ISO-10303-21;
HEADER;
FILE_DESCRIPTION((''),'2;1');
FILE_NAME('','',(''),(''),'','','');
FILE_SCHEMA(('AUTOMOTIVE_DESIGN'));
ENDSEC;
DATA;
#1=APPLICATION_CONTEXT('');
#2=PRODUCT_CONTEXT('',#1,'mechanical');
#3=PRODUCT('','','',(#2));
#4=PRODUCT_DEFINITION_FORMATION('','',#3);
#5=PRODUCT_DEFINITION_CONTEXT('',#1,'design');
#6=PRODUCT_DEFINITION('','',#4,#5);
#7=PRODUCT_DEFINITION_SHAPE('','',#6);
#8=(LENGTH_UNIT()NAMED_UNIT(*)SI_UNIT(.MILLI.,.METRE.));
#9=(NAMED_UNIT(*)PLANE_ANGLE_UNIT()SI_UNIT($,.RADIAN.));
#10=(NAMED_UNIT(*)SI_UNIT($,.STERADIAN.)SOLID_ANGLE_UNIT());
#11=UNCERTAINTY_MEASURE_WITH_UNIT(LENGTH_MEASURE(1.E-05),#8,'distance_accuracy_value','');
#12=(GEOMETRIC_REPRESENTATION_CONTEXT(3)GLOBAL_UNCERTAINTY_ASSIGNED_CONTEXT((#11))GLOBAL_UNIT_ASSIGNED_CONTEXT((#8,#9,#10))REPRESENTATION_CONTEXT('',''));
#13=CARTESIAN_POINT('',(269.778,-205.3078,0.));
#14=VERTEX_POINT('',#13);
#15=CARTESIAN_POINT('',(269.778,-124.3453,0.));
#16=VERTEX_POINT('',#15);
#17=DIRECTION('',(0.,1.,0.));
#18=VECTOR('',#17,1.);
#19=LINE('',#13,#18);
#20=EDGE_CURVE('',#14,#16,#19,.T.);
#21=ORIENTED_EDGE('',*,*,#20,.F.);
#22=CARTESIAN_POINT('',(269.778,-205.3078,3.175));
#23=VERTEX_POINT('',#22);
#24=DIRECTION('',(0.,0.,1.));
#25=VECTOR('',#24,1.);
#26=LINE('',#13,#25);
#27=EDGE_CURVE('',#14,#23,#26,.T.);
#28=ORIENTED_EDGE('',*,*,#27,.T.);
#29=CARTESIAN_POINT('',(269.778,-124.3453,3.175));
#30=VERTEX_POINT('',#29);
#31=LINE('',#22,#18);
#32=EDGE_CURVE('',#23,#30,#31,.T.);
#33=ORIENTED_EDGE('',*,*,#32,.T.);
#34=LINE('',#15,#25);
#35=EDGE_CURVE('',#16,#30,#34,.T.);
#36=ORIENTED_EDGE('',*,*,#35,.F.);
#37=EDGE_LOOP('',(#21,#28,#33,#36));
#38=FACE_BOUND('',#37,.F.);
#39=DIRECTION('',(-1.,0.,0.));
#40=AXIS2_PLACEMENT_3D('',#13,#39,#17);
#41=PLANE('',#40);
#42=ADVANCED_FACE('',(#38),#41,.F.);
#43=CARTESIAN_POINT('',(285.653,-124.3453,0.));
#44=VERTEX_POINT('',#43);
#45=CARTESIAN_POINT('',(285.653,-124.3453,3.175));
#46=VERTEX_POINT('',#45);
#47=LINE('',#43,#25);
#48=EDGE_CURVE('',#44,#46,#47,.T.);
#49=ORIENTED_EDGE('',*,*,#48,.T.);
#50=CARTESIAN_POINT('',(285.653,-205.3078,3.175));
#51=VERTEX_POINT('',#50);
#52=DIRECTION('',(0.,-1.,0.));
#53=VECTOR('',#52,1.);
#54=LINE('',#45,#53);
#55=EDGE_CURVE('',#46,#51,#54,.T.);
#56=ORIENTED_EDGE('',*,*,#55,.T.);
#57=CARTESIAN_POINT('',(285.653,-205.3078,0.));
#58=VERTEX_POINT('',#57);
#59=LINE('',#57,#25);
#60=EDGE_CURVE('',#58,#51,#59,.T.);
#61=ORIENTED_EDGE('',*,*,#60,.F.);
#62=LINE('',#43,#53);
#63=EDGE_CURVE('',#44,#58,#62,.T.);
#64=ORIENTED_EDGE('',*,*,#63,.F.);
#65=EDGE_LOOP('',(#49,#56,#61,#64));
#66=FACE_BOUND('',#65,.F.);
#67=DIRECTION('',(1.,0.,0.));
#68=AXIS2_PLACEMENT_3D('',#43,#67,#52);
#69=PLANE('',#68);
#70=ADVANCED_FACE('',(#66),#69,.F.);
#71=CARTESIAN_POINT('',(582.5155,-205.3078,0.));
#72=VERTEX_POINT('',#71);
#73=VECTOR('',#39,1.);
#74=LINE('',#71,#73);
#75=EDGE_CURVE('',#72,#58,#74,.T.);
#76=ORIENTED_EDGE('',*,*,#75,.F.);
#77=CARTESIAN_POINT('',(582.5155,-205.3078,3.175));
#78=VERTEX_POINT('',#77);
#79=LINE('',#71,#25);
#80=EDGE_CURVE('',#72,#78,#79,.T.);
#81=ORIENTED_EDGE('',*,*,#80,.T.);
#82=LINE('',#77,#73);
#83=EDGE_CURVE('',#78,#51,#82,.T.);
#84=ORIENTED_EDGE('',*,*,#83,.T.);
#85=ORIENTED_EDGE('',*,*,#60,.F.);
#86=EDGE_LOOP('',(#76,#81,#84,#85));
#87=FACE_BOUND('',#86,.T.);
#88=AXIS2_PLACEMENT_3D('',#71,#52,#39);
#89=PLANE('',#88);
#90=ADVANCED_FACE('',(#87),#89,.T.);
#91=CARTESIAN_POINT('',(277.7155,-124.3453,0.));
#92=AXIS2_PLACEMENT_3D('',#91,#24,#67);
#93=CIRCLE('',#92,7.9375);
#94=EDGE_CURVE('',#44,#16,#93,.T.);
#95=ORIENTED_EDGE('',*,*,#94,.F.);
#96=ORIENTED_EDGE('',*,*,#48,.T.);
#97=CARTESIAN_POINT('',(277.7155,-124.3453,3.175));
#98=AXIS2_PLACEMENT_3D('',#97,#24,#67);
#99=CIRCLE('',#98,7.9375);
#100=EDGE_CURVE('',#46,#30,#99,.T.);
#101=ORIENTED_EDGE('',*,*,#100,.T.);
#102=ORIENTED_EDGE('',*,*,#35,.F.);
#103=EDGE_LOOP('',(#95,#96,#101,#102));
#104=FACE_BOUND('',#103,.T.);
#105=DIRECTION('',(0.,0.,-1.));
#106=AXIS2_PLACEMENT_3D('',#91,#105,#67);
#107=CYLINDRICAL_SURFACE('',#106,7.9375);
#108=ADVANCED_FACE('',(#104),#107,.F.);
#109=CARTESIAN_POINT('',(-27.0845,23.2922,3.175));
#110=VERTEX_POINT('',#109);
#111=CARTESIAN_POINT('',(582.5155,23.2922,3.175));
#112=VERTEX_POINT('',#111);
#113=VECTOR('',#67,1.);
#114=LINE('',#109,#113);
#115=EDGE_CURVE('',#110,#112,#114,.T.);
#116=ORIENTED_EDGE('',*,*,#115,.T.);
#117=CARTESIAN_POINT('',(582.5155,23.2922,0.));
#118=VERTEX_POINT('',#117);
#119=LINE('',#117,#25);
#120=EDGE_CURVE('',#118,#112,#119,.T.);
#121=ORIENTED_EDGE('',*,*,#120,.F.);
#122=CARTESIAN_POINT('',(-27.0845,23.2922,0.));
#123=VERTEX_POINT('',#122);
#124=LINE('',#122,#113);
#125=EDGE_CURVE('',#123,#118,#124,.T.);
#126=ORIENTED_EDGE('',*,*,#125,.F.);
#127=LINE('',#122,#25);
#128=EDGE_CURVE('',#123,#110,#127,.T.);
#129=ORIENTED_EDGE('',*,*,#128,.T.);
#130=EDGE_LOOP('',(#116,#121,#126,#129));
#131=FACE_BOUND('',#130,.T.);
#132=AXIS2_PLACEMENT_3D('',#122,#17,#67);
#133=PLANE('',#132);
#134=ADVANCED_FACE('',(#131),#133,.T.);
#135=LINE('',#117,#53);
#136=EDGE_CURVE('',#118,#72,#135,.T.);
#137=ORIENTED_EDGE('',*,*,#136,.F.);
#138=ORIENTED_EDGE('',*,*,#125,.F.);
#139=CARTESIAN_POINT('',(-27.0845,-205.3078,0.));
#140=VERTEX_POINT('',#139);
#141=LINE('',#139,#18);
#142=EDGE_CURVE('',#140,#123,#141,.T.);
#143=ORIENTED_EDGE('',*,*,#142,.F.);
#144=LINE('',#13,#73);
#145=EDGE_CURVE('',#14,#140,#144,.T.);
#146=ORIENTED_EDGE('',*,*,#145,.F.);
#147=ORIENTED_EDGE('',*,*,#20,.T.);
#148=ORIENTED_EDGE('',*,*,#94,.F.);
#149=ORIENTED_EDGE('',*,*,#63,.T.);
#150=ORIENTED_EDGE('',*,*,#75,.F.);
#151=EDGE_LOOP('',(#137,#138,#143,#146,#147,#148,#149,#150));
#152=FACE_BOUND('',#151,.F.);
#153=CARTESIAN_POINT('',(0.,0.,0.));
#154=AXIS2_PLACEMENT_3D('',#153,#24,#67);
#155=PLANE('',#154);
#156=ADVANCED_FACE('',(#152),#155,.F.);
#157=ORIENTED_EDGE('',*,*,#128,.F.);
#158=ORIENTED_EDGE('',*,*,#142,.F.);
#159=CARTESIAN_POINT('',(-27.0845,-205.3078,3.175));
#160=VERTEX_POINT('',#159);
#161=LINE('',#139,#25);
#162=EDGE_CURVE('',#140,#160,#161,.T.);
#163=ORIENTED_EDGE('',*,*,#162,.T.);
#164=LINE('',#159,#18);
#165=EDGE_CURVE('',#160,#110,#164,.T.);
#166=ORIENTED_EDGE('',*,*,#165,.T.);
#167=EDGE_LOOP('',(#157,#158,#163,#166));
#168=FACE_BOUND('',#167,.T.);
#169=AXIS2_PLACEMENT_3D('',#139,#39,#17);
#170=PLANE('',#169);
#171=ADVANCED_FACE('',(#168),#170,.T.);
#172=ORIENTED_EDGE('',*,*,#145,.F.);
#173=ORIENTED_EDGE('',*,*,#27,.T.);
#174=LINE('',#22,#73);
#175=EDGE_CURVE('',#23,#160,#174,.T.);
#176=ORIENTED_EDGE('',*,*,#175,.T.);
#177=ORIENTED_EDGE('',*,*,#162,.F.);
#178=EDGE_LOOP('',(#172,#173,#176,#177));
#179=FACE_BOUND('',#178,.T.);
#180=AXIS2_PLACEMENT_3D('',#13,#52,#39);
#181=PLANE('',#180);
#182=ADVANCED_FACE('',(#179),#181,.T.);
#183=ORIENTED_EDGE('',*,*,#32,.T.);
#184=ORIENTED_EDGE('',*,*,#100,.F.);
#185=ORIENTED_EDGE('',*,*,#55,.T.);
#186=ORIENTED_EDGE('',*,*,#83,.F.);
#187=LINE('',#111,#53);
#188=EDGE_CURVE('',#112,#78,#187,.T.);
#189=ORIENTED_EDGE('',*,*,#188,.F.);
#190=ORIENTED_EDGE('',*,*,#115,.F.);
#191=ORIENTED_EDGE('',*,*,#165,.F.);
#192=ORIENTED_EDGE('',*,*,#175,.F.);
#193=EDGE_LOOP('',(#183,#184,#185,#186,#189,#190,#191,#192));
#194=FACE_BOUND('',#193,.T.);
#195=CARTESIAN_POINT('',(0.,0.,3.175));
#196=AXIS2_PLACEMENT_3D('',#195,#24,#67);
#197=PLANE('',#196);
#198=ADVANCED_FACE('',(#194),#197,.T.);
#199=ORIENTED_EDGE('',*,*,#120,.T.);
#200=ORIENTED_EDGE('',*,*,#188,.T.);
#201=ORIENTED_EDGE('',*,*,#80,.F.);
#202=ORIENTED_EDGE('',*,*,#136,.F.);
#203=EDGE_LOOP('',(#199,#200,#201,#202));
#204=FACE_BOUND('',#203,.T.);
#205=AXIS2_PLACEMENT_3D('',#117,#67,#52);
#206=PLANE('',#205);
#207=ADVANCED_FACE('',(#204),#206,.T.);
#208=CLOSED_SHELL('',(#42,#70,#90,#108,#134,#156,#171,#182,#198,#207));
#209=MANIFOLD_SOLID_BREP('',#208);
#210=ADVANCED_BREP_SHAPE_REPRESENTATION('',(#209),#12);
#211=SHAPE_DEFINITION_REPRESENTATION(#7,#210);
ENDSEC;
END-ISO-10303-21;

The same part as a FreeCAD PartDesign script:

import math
import FreeCAD as App
import Part
import Sketcher
from FreeCAD import Vector
Q = App.Units.Quantity

doc = App.newDocument("Part")
body = doc.addObject("PartDesign::Body", "Body")

# Sketch on XY plane
sketch1 = body.newObject("Sketcher::SketchObject", "Sketch")
sketch1.AttachmentSupport = (doc.getObject("XY_Plane"), [""])
sketch1.MapMode = "FlatFace"
sketch1.addGeometry(Part.LineSegment(Vector(582.5155, 23.2922, 0), Vector(-27.0845, 23.2922, 0)), False)
sketch1.addGeometry(Part.LineSegment(Vector(-27.0845, 23.2922, 0), Vector(-27.0845, -205.3078, 0)), False)
sketch1.addGeometry(Part.LineSegment(Vector(-27.0845, -205.3078, 0), Vector(269.778, -205.3078, 0)), False)
sketch1.addGeometry(Part.LineSegment(Vector(269.778, -205.3078, 0), Vector(269.778, -124.3453, 0)), False)
sketch1.addGeometry(Part.ArcOfCircle(Part.Circle(Vector(277.7155, -124.3453, 0), Vector(0, 0, 1), 7.9375), math.radians(0), math.radians(180)), False)
sketch1.addGeometry(Part.LineSegment(Vector(285.653, -124.3453, 0), Vector(285.653, -205.3078, 0)), False)
sketch1.addGeometry(Part.LineSegment(Vector(285.653, -205.3078, 0), Vector(582.5155, -205.3078, 0)), False)
sketch1.addGeometry(Part.LineSegment(Vector(582.5155, -205.3078, 0), Vector(582.5155, 23.2922, 0)), False)
sketch1.addConstraint(Sketcher.Constraint("Coincident", 0, 2, 1, 1))
sketch1.addConstraint(Sketcher.Constraint("Coincident", 1, 2, 2, 1))
sketch1.addConstraint(Sketcher.Constraint("Coincident", 2, 2, 3, 1))
sketch1.addConstraint(Sketcher.Constraint("Tangent", 3, 2, 4, 2))
sketch1.addConstraint(Sketcher.Constraint("Tangent", 4, 1, 5, 1))
sketch1.addConstraint(Sketcher.Constraint("Coincident", 5, 2, 6, 1))
sketch1.addConstraint(Sketcher.Constraint("Coincident", 6, 2, 7, 1))
sketch1.addConstraint(Sketcher.Constraint("Coincident", 7, 2, 0, 1))
sketch1.addConstraint(Sketcher.Constraint("Horizontal", 0))
sketch1.addConstraint(Sketcher.Constraint("Vertical", 1))
sketch1.addConstraint(Sketcher.Constraint("Horizontal", 2))
sketch1.addConstraint(Sketcher.Constraint("Vertical", 3))
sketch1.addConstraint(Sketcher.Constraint("Vertical", 5))
sketch1.addConstraint(Sketcher.Constraint("Horizontal", 6))
sketch1.addConstraint(Sketcher.Constraint("Vertical", 7))
sketch1.addConstraint(Sketcher.Constraint("Horizontal", 2, 2, 5, 2))
sketch1.addConstraint(Sketcher.Constraint("Equal", 2, 6))
sketch1.addConstraint(Sketcher.Constraint("DistanceX", 0, 2, 0, 1, Q("24 in")))
sketch1.addConstraint(Sketcher.Constraint("DistanceY", 1, 2, 1, 1, Q("9 in")))
sketch1.addConstraint(Sketcher.Constraint("Radius", 4, Q("0.3125 in")))
sketch1.addConstraint(Sketcher.Constraint("DistanceY", 3, 1, 3, 2, Q("3.1875 in")))
sketch1.addConstraint(Sketcher.Constraint("DistanceX", -1, 1, 4, 3, Q("277.7155 mm")))
sketch1.addConstraint(Sketcher.Constraint("DistanceY", 4, 3, -1, 1, Q("124.3453 mm")))
pad1 = body.newObject("PartDesign::Pad", "Pad")
pad1.Profile = sketch1
pad1.Length = Q("0.125 in")

doc.recompute()
